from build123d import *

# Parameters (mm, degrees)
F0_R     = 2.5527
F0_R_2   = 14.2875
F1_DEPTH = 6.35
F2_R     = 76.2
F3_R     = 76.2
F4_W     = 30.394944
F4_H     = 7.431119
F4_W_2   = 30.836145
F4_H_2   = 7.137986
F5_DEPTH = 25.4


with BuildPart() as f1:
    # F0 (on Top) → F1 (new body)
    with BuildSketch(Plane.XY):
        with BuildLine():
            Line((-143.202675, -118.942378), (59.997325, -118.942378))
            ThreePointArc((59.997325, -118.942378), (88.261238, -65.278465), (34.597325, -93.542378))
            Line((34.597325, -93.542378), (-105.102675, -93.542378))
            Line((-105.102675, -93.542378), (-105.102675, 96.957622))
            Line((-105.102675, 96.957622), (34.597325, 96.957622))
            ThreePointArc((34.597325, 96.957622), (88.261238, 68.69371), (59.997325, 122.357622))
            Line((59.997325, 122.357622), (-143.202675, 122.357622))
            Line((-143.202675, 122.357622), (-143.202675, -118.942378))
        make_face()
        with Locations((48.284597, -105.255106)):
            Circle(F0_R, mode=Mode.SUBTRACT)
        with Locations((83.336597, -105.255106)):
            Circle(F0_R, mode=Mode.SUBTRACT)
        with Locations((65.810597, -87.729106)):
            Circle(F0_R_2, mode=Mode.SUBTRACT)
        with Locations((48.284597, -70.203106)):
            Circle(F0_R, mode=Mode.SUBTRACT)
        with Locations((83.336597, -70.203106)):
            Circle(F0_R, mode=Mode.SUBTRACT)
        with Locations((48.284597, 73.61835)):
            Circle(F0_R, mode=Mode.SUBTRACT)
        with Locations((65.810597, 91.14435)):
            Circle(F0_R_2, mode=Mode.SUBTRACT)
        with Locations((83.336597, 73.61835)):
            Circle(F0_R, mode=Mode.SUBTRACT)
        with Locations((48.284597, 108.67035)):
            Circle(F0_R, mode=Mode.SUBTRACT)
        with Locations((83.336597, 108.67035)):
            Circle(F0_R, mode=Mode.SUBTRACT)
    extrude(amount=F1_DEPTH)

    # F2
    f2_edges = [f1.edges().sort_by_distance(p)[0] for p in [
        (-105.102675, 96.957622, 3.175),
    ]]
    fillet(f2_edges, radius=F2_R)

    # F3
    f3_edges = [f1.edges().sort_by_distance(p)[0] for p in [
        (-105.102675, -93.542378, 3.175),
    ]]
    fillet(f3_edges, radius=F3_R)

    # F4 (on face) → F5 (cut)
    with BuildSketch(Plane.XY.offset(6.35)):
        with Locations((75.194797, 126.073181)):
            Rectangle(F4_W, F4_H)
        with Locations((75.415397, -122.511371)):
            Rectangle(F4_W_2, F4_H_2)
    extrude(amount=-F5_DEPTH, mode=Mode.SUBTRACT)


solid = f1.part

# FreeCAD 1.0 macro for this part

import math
import FreeCAD as App
import Part
import Sketcher

V = App.Vector
Q = App.Units.Quantity


def edges_at(feature, points):
    """Names of the edges that pass closest to the given points."""
    edges = feature.Shape.Edges
    near = lambda p: min(range(len(edges)), key=lambda i: edges[i].distToShape(Part.Vertex(*p))[0])
    return sorted({f"Edge{near(p) + 1}" for p in points})


def add_polygon(sketch, points):
    """Adds a closed chain of lines whose ends are joined by coincident constraints."""
    first, n = sketch.GeometryCount, len(points)
    for a, b in zip(points, points[1:] + points[:1]):
        sketch.addGeometry(Part.LineSegment(App.Vector(*a, 0), App.Vector(*b, 0)), False)
    for i in range(n):
        sketch.addConstraint(Sketcher.Constraint("Coincident", first + i, 2, first + (i + 1) % n, 1))

doc = App.newDocument("Part")
body = doc.addObject("PartDesign::Body", "Body")

# Sketch on XY plane
sketch1 = body.newObject("Sketcher::SketchObject", "Sketch")
sketch1.AttachmentSupport = (doc.getObject("XY_Plane"), [""])
sketch1.MapMode = "FlatFace"
sketch1.addGeometry(Part.LineSegment(V(-143.2, -118.9, 0), V(60, -118.9, 0)), False)
sketch1.addGeometry(Part.ArcOfCircle(Part.Circle(V(65.8, -87.7, 0), V(0, 0, 1), 31.8), math.radians(-101), math.radians(191)), False)
sketch1.addGeometry(Part.LineSegment(V(34.6, -93.5, 0), V(-105.1, -93.5, 0)), False)
sketch1.addGeometry(Part.LineSegment(V(-105.1, -93.5, 0), V(-105.1, 97, 0)), False)
sketch1.addGeometry(Part.LineSegment(V(-105.1, 97, 0), V(34.6, 97, 0)), False)
sketch1.addGeometry(Part.ArcOfCircle(Part.Circle(V(65.8, 91.1, 0), V(0, 0, 1), 31.7), math.radians(169), math.radians(461)), False)
sketch1.addGeometry(Part.LineSegment(V(60, 122.4, 0), V(-143.2, 122.4, 0)), False)
sketch1.addGeometry(Part.LineSegment(V(-143.2, 122.4, 0), V(-143.2, -118.9, 0)), False)
sketch1.addGeometry(Part.Circle(V(48.3, -105.3, 0), V(0, 0, 1), 2.6), False)
sketch1.addGeometry(Part.Circle(V(48.3, -70.2, 0), V(0, 0, 1), 2.6), False)
sketch1.addGeometry(Part.Circle(V(65.8, -87.7, 0), V(0, 0, 1), 14.3), False)
sketch1.addGeometry(Part.Circle(V(83.3, -105.3, 0), V(0, 0, 1), 2.6), False)
sketch1.addGeometry(Part.Circle(V(83.3, -70.2, 0), V(0, 0, 1), 2.6), False)
sketch1.addGeometry(Part.Circle(V(48.3, 73.6, 0), V(0, 0, 1), 2.6), False)
sketch1.addGeometry(Part.Circle(V(48.3, 108.7, 0), V(0, 0, 1), 2.6), False)
sketch1.addGeometry(Part.Circle(V(65.8, 91.1, 0), V(0, 0, 1), 14.3), False)
sketch1.addGeometry(Part.Circle(V(83.3, 73.6, 0), V(0, 0, 1), 2.6), False)
sketch1.addGeometry(Part.Circle(V(83.3, 108.7, 0), V(0, 0, 1), 2.6), False)
sketch1.addConstraint(Sketcher.Constraint("Coincident", 0, 2, 1, 1))
sketch1.addConstraint(Sketcher.Constraint("Coincident", 1, 2, 2, 1))
sketch1.addConstraint(Sketcher.Constraint("Coincident", 2, 2, 3, 1))
sketch1.addConstraint(Sketcher.Constraint("Coincident", 3, 2, 4, 1))
sketch1.addConstraint(Sketcher.Constraint("Coincident", 4, 2, 5, 1))
sketch1.addConstraint(Sketcher.Constraint("Coincident", 5, 2, 6, 1))
sketch1.addConstraint(Sketcher.Constraint("Coincident", 6, 2, 7, 1))
sketch1.addConstraint(Sketcher.Constraint("Coincident", 7, 2, 0, 1))
sketch1.addConstraint(Sketcher.Constraint("Horizontal", 0))
sketch1.addConstraint(Sketcher.Constraint("Horizontal", 2))
sketch1.addConstraint(Sketcher.Constraint("Vertical", 3))
sketch1.addConstraint(Sketcher.Constraint("Horizontal", 4))
sketch1.addConstraint(Sketcher.Constraint("Horizontal", 6))
sketch1.addConstraint(Sketcher.Constraint("Vertical", 7))
sketch1.addConstraint(Sketcher.Constraint("Coincident", 10, 3, 1, 3))
sketch1.addConstraint(Sketcher.Constraint("Coincident", 15, 3, 5, 3))
sketch1.addConstraint(Sketcher.Constraint("Equal", 1, 5))
sketch1.addConstraint(Sketcher.Constraint("Equal", 8, 9))
sketch1.addConstraint(Sketcher.Constraint("Equal", 9, 11))
sketch1.addConstraint(Sketcher.Constraint("Equal", 11, 12))
sketch1.addConstraint(Sketcher.Constraint("Equal", 12, 13))
sketch1.addConstraint(Sketcher.Constraint("Equal", 13, 14))
sketch1.addConstraint(Sketcher.Constraint("Equal", 10, 15))
sketch1.addConstraint(Sketcher.Constraint("Equal", 14, 16))
sketch1.addConstraint(Sketcher.Constraint("Equal", 16, 17))
sketch1.addConstraint(Sketcher.Constraint("Horizontal", 8, 3, 11, 3))
sketch1.addConstraint(Sketcher.Constraint("Horizontal", 9, 3, 12, 3))
sketch1.addConstraint(Sketcher.Constraint("Horizontal", 13, 3, 16, 3))
sketch1.addConstraint(Sketcher.Constraint("Horizontal", 14, 3, 17, 3))
sketch1.addConstraint(Sketcher.Constraint("Vertical", 1, 3, 5, 3))
sketch1.addConstraint(Sketcher.Constraint("Vertical", 8, 3, 9, 3))
sketch1.addConstraint(Sketcher.Constraint("Vertical", 11, 3, 12, 3))
sketch1.addConstraint(Sketcher.Constraint("Vertical", 9, 3, 13, 3))
sketch1.addConstraint(Sketcher.Constraint("Vertical", 13, 3, 14, 3))
sketch1.addConstraint(Sketcher.Constraint("Vertical", 12, 3, 16, 3))
sketch1.addConstraint(Sketcher.Constraint("Vertical", 16, 3, 17, 3))
sketch1.addConstraint(Sketcher.Constraint("Vertical", 1, 2, 4, 2))
sketch1.addConstraint(Sketcher.Constraint("Vertical", 0, 2, 5, 2))
sketch1.addConstraint(Sketcher.Constraint("DistanceX", 0, 1, 0, 2, Q("8 in")))
sketch1.addConstraint(Sketcher.Constraint("Radius", 1, Q("1.25 in")))
sketch1.addConstraint(Sketcher.Constraint("Diameter", 8, Q("0.201 in")))
sketch1.addConstraint(Sketcher.Constraint("Diameter", 10, Q("1.125 in")))
sketch1.addConstraint(Sketcher.Constraint("DistanceX", 2, 2, 2, 1, Q("5.5 in")))
sketch1.addConstraint(Sketcher.Constraint("DistanceY", 3, 1, 3, 2, Q("7.5 in")))
sketch1.addConstraint(Sketcher.Constraint("DistanceY", 7, 2, 7, 1, Q("9.5 in")))
sketch1.addConstraint(Sketcher.Constraint("DistanceX", 1, 2, 0, 2, Q("1 in")))
sketch1.addConstraint(Sketcher.Constraint("DistanceX", 8, 3, 1, 3, Q("0.69 in")))
sketch1.addConstraint(Sketcher.Constraint("DistanceY", 8, 3, 1, 3, Q("0.69 in")))
sketch1.addConstraint(Sketcher.Constraint("DistanceY", 1, 3, 9, 3, Q("0.69 in")))
sketch1.addConstraint(Sketcher.Constraint("DistanceX", 10, 3, 11, 3, Q("0.69 in")))
sketch1.addConstraint(Sketcher.Constraint("DistanceY", 13, 3, 5, 3, Q("0.69 in")))
sketch1.addConstraint(Sketcher.Constraint("DistanceY", 5, 3, 14, 3, Q("0.69 in")))
sketch1.addConstraint(Sketcher.Constraint("DistanceY", -1, 1, 5, 3, 91.14435))
sketch1.addConstraint(Sketcher.Constraint("DistanceX", -1, 1, 1, 3, 65.810598))
pad1 = body.newObject("PartDesign::Pad", "Pad")
pad1.Profile = sketch1
pad1.Length = Q("0.25 in")
doc.recompute()

fillet = body.newObject("PartDesign::Fillet", "Fillet")
fillet.Base = (pad1, edges_at(pad1, [(-105.103, 96.958, 3.175)]))
fillet.Radius = Q("3 in")
doc.recompute()

fillet2 = body.newObject("PartDesign::Fillet", "Fillet001")
fillet2.Base = (fillet, edges_at(fillet, [(-105.103, -93.542, 3.175)]))
fillet2.Radius = Q("3 in")

# Sketch on XY plane
sketch2 = body.newObject("Sketcher::SketchObject", "Sketch001")
sketch2.AttachmentSupport = (doc.getObject("XY_Plane"), [""])
sketch2.MapMode = "FlatFace"
sketch2.AttachmentOffset = App.Placement(V(0, 0, 0.25 * 25.4), App.Rotation())
add_polygon(sketch2, [(60, 130), (60, 122), (90, 122), (90, 130)])  # lines 0-3
add_polygon(sketch2, [(60, -119), (60, -126), (91, -126), (91, -119)])  # lines 4-7
sketch2.addConstraint(Sketcher.Constraint("Vertical", 0))
sketch2.addConstraint(Sketcher.Constraint("Horizontal", 1))
sketch2.addConstraint(Sketcher.Constraint("Vertical", 2))
sketch2.addConstraint(Sketcher.Constraint("Horizontal", 3))
sketch2.addConstraint(Sketcher.Constraint("Vertical", 4))
sketch2.addConstraint(Sketcher.Constraint("Horizontal", 5))
sketch2.addConstraint(Sketcher.Constraint("Vertical", 6))
sketch2.addConstraint(Sketcher.Constraint("Horizontal", 7))
sketch2.addConstraint(Sketcher.Constraint("Vertical", 3, 2, 4, 2))
sketch2.addConstraint(Sketcher.Constraint("DistanceY", 6, 2, 1, 2, Q("9.5 in")))
sketch2.addConstraint(Sketcher.Constraint("DistanceY", 0, 2, 0, 1, 7.431119))
sketch2.addConstraint(Sketcher.Constraint("DistanceX", 1, 2, 5, 2, 0.441201))
sketch2.addConstraint(Sketcher.Constraint("DistanceX", 1, 1, 1, 2, 30.394944))
sketch2.addConstraint(Sketcher.Constraint("DistanceY", 4, 2, 4, 1, 7.137986))
sketch2.addConstraint(Sketcher.Constraint("DistanceY", -1, 1, 0, 2, 122.357621))
sketch2.addConstraint(Sketcher.Constraint("DistanceX", -1, 1, 1, 2, 90.392269))
pocket1 = body.newObject("PartDesign::Pocket", "Pocket")
pocket1.Profile = sketch2
pocket1.Length = Q("1 in")

doc.recompute()
